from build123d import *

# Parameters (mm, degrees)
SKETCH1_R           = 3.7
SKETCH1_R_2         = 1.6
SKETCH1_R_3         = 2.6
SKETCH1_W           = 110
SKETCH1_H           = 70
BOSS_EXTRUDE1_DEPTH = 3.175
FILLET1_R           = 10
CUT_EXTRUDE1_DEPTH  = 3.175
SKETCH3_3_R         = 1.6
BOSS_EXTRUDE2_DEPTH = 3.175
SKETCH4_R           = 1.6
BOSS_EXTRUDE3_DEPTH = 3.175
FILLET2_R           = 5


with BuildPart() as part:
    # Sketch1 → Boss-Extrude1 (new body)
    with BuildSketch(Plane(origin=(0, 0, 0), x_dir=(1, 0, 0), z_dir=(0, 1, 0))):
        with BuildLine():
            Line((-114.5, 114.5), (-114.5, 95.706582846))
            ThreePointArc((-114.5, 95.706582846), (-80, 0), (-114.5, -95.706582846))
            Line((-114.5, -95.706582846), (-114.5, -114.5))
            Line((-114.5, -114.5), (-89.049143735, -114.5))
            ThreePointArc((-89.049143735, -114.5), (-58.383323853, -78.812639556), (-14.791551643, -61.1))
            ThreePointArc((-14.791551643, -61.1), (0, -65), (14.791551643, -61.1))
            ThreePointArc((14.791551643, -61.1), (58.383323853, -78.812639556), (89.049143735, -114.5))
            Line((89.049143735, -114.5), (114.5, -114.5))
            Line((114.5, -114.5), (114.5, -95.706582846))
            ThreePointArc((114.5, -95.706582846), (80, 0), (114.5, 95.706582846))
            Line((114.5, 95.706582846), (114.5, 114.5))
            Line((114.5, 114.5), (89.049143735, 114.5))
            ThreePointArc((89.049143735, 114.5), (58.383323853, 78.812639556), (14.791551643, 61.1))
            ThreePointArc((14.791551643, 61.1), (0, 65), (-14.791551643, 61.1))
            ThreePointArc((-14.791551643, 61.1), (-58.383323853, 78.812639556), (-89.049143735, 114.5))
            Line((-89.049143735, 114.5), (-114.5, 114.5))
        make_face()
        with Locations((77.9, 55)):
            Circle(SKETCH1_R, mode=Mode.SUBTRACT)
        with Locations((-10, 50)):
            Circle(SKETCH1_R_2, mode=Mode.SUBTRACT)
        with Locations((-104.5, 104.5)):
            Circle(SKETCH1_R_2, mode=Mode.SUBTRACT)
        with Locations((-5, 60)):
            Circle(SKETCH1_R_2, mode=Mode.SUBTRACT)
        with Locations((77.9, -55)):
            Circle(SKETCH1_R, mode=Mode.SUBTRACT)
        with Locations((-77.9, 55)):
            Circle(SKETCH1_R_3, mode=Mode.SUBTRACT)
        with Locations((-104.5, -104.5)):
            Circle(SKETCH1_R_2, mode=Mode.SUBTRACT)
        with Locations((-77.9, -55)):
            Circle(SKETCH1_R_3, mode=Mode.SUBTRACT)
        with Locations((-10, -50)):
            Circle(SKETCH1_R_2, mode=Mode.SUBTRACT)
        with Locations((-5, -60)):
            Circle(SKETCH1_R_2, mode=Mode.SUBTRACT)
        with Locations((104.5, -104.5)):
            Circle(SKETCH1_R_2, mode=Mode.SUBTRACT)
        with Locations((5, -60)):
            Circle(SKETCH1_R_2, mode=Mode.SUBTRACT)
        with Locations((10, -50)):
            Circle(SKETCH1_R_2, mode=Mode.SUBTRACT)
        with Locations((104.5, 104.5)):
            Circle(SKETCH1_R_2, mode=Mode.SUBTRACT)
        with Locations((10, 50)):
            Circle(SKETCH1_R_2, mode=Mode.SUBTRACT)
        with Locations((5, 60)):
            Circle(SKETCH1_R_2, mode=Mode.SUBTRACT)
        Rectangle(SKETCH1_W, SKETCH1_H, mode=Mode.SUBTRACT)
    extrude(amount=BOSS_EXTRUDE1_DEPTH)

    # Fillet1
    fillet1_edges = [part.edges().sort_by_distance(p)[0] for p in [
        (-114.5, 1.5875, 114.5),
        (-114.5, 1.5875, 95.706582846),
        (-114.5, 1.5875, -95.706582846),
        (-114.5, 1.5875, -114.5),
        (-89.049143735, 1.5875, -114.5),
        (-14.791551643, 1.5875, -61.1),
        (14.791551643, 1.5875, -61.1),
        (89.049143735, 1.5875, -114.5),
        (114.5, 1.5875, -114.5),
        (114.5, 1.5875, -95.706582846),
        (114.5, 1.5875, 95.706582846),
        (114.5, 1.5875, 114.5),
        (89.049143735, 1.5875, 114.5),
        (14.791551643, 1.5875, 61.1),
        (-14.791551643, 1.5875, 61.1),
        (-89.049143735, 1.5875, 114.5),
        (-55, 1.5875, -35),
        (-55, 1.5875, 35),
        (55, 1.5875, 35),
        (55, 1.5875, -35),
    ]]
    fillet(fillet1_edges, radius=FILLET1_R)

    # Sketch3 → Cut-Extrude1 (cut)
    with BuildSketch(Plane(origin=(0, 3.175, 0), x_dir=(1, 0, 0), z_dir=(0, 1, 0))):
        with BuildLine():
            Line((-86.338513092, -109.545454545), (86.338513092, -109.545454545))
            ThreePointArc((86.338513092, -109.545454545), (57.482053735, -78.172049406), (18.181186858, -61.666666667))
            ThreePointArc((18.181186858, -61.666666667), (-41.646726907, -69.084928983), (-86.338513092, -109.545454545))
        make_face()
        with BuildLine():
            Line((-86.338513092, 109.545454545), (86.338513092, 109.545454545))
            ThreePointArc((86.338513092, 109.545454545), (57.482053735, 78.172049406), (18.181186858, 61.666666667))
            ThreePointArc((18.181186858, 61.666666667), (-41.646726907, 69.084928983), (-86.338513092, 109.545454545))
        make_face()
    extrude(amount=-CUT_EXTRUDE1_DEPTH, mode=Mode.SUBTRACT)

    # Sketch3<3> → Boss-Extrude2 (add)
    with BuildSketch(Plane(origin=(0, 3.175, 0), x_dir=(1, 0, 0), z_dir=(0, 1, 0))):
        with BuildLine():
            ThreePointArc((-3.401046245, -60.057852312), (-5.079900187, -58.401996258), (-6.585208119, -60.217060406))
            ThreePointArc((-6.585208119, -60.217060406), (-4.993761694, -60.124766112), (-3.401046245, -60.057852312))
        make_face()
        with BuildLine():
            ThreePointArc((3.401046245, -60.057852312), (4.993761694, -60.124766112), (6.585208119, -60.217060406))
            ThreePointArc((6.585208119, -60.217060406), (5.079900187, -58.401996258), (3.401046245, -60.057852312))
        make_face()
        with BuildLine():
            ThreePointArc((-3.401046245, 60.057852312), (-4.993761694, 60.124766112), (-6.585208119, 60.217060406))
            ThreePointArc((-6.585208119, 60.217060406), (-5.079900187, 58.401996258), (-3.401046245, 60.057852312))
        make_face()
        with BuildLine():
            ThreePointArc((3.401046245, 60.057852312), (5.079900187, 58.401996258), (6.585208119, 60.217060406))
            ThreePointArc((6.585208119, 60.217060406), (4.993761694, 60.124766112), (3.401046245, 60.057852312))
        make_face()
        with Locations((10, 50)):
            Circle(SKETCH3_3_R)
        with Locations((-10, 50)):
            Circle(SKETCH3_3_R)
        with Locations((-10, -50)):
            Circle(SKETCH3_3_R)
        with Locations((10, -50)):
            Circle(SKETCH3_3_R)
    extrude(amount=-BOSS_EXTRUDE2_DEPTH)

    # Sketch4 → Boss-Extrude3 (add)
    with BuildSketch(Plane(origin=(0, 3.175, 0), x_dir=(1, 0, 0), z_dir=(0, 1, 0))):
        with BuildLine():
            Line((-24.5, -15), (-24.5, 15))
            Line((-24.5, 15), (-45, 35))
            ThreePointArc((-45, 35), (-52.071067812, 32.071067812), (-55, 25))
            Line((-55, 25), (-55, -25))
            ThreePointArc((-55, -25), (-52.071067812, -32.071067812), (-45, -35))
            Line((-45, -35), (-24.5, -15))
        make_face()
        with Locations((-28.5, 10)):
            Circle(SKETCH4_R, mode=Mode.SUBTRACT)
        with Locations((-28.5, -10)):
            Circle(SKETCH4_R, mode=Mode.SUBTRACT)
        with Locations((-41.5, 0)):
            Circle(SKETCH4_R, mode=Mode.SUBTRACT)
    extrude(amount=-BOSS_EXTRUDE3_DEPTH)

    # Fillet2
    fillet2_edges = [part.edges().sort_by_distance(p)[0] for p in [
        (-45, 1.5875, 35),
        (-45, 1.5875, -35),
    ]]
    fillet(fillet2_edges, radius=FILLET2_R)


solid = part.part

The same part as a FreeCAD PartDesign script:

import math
import FreeCAD as App
import Part
import Sketcher

V = App.Vector


def edges_at(feature, points):
    """Names of the edges that pass closest to the given points."""
    edges = feature.Shape.Edges
    near = lambda p: min(range(len(edges)), key=lambda i: edges[i].distToShape(Part.Vertex(*p))[0])
    return sorted({f"Edge{near(p) + 1}" for p in points})


def add_polygon(sketch, points):
    """Adds a closed chain of lines whose ends are joined by coincident constraints."""
    first, n = sketch.GeometryCount, len(points)
    for a, b in zip(points, points[1:] + points[:1]):
        sketch.addGeometry(Part.LineSegment(App.Vector(*a, 0), App.Vector(*b, 0)), False)
    for i in range(n):
        sketch.addConstraint(Sketcher.Constraint("Coincident", first + i, 2, first + (i + 1) % n, 1))

doc = App.newDocument("Part")
body = doc.addObject("PartDesign::Body", "Body")

# Sketch on XZ plane
sketch1 = body.newObject("Sketcher::SketchObject", "Sketch")
sketch1.AttachmentSupport = (doc.getObject("XZ_Plane"), [""])
sketch1.MapMode = "FlatFace"
sketch1.addGeometry(Part.LineSegment(V(-114.5, -114.5, 0), V(-114.5, -95.7, 0)), False)  # 0
sketch1.addGeometry(Part.ArcOfCircle(Part.Circle(V(-230, 0, 0), V(0, 0, 1), 150), math.radians(-40), math.radians(40)), False)  # 1
sketch1.addGeometry(Part.LineSegment(V(-114.5, 95.7, 0), V(-114.5, 114.5, 0)), False)  # 2
sketch1.addGeometry(Part.LineSegment(V(-114.5, 114.5, 0), V(-89, 114.5, 0)), False)  # 3
sketch1.addGeometry(Part.ArcOfCircle(Part.Circle(V(0, 160, 0), V(0, 0, 1), 100), math.radians(-153), math.radians(-99)), False)  # 4
sketch1.addGeometry(Part.ArcOfCircle(Part.Circle(V(0, 35, 0), V(0, 0, 1), 30), math.radians(60), math.radians(120)), False)  # 5
sketch1.addGeometry(Part.ArcOfCircle(Part.Circle(V(0, 160, 0), V(0, 0, 1), 100), math.radians(-81), math.radians(-27)), False)  # 6
sketch1.addGeometry(Part.LineSegment(V(89, 114.5, 0), V(114.5, 114.5, 0)), False)  # 7
sketch1.addGeometry(Part.LineSegment(V(114.5, 114.5, 0), V(114.5, 95.7, 0)), False)  # 8
sketch1.addGeometry(Part.ArcOfCircle(Part.Circle(V(230, 0, 0), V(0, 0, 1), 150), math.radians(140), math.radians(220)), False)  # 9
sketch1.addGeometry(Part.LineSegment(V(114.5, -95.7, 0), V(114.5, -114.5, 0)), False)  # 10
sketch1.addGeometry(Part.LineSegment(V(114.5, -114.5, 0), V(89, -114.5, 0)), False)  # 11
sketch1.addGeometry(Part.ArcOfCircle(Part.Circle(V(0, -160, 0), V(0, 0, 1), 100), math.radians(27), math.radians(81)), False)  # 12
sketch1.addGeometry(Part.ArcOfCircle(Part.Circle(V(0, -35, 0), V(0, 0, 1), 30), math.radians(-120), math.radians(-60)), False)  # 13
sketch1.addGeometry(Part.ArcOfCircle(Part.Circle(V(0, -160, 0), V(0, 0, 1), 100), math.radians(99), math.radians(153)), False)  # 14
sketch1.addGeometry(Part.LineSegment(V(-89, -114.5, 0), V(-114.5, -114.5, 0)), False)  # 15
sketch1.addGeometry(Part.Circle(V(-104.5, 104.5, 0), V(0, 0, 1), 1.6), False)  # 16
sketch1.addGeometry(Part.Circle(V(-77.9, 55, 0), V(0, 0, 1), 2.6), False)  # 17
sketch1.addGeometry(Part.Circle(V(-5, 60, 0), V(0, 0, 1), 1.6), False)  # 18
sketch1.addGeometry(Part.Circle(V(-10, 50, 0), V(0, 0, 1), 1.6), False)  # 19
sketch1.addGeometry(Part.Circle(V(5, 60, 0), V(0, 0, 1), 1.6), False)  # 20
sketch1.addGeometry(Part.Circle(V(104.5, 104.5, 0), V(0, 0, 1), 1.6), False)  # 21
sketch1.addGeometry(Part.Circle(V(77.9, 55, 0), V(0, 0, 1), 3.7), False)  # 22
sketch1.addGeometry(Part.Circle(V(10, 50, 0), V(0, 0, 1), 1.6), False)  # 23
sketch1.addGeometry(Part.Circle(V(-10, -50, 0), V(0, 0, 1), 1.6), False)  # 24
sketch1.addGeometry(Part.Circle(V(-77.9, -55, 0), V(0, 0, 1), 2.6), False)  # 25
sketch1.addGeometry(Part.Circle(V(-104.5, -104.5, 0), V(0, 0, 1), 1.6), False)  # 26
sketch1.addGeometry(Part.Circle(V(-5, -60, 0), V(0, 0, 1), 1.6), False)  # 27
add_polygon(sketch1, [(55, 35), (-55, 35), (-55, -35), (55, -35)])  # lines 28-31
sketch1.addGeometry(Part.Circle(V(10, -50, 0), V(0, 0, 1), 1.6), False)  # 32
sketch1.addGeometry(Part.Circle(V(5, -60, 0), V(0, 0, 1), 1.6), False)  # 33
sketch1.addGeometry(Part.Circle(V(77.9, -55, 0), V(0, 0, 1), 3.7), False)  # 34
sketch1.addGeometry(Part.Circle(V(104.5, -104.5, 0), V(0, 0, 1), 1.6), False)  # 35
sketch1.addConstraint([
    Sketcher.Constraint("Coincident", 0, 2, 1, 1),
    Sketcher.Constraint("Coincident", 1, 2, 2, 1),
    Sketcher.Constraint("Coincident", 2, 2, 3, 1),
    Sketcher.Constraint("Coincident", 3, 2, 4, 1),
    Sketcher.Constraint("Coincident", 4, 2, 5, 2),
    Sketcher.Constraint("Coincident", 5, 1, 6, 1),
    Sketcher.Constraint("Coincident", 6, 2, 7, 1),
    Sketcher.Constraint("Coincident", 7, 2, 8, 1),
    Sketcher.Constraint("Coincident", 8, 2, 9, 1),
    Sketcher.Constraint("Coincident", 9, 2, 10, 1),
    Sketcher.Constraint("Coincident", 10, 2, 11, 1),
    Sketcher.Constraint("Coincident", 11, 2, 12, 1),
    Sketcher.Constraint("Coincident", 12, 2, 13, 2),
    Sketcher.Constraint("Coincident", 13, 1, 14, 1),
    Sketcher.Constraint("Coincident", 14, 2, 15, 1),
    Sketcher.Constraint("Coincident", 15, 2, 0, 1),
    Sketcher.Constraint("Vertical", 0),
    Sketcher.Constraint("Vertical", 2),
    Sketcher.Constraint("Horizontal", 3),
    Sketcher.Constraint("Horizontal", 7),
    Sketcher.Constraint("Vertical", 8),
    Sketcher.Constraint("Vertical", 10),
    Sketcher.Constraint("Horizontal", 11),
    Sketcher.Constraint("Horizontal", 15),
    Sketcher.Constraint("Horizontal", 28),
    Sketcher.Constraint("Vertical", 29),
    Sketcher.Constraint("Horizontal", 30),
    Sketcher.Constraint("Vertical", 31),
    Sketcher.Constraint("Coincident", 6, 3, 4, 3),
    Sketcher.Constraint("Coincident", 14, 3, 12, 3),
    Sketcher.Constraint("Equal", 4, 6),
    Sketcher.Constraint("Equal", 1, 9),
    Sketcher.Constraint("Equal", 6, 12),
    Sketcher.Constraint("Equal", 5, 13),
    Sketcher.Constraint("Equal", 12, 14),
    Sketcher.Constraint("Equal", 16, 18),
    Sketcher.Constraint("Equal", 18, 19),
    Sketcher.Constraint("Equal", 19, 20),
    Sketcher.Constraint("Equal", 20, 21),
    Sketcher.Constraint("Equal", 21, 23),
    Sketcher.Constraint("Equal", 23, 24),
    Sketcher.Constraint("Equal", 17, 25),
    Sketcher.Constraint("Equal", 24, 26),
    Sketcher.Constraint("Equal", 26, 27),
    Sketcher.Constraint("Equal", 27, 32),
    Sketcher.Constraint("Equal", 32, 33),
    Sketcher.Constraint("Equal", 22, 34),
    Sketcher.Constraint("Equal", 33, 35),
    Sketcher.Constraint("Symmetric", 1, 3, 9, 3, -1, 1),
    Sketcher.Constraint("Symmetric", 4, 3, 12, 3, -1, 1),
    Sketcher.Constraint("Symmetric", 5, 3, 13, 3, -1, 1),
    Sketcher.Constraint("Symmetric", 23, 3, 24, 3, -1, 1),
    Sketcher.Constraint("Symmetric", 22, 3, 25, 3, -1, 1),
    Sketcher.Constraint("Symmetric", 21, 3, 26, 3, -1, 1),
    Sketcher.Constraint("Symmetric", 20, 3, 27, 3, -1, 1),
    Sketcher.Constraint("Symmetric", 19, 3, 32, 3, -1, 1),
    Sketcher.Constraint("Symmetric", 18, 3, 33, 3, -1, 1),
    Sketcher.Constraint("Symmetric", 17, 3, 34, 3, -1, 1),
    Sketcher.Constraint("Symmetric", 16, 3, 35, 3, -1, 1),
    Sketcher.Constraint("Symmetric", 2, 2, 10, 2, -1, 1),
    Sketcher.Constraint("Symmetric", 7, 2, 15, 2, -1, 1),
    Sketcher.Constraint("Symmetric", 28, 2, 30, 2, -1, 1),
    Sketcher.Constraint("Symmetric", 18, 3, 20, 3, -2),
    Sketcher.Constraint("Symmetric", 16, 3, 21, 3, -2),
    Sketcher.Constraint("Symmetric", 17, 3, 22, 3, -2),
    Sketcher.Constraint("Symmetric", 19, 3, 23, 3, -2),
    Sketcher.Constraint("Symmetric", 4, 2, 5, 1, -2),
    Sketcher.Constraint("Symmetric", 2, 2, 7, 2, -2),
    Sketcher.Constraint("PointOnObject", 1, 3, -1),
    Sketcher.Constraint("Horizontal", 5, 3, 28, 2),
    Sketcher.Constraint("Radius", 1, 150.0),
    Sketcher.Constraint("Radius", 4, 100.0),
    Sketcher.Constraint("Radius", 5, 30.0),
    Sketcher.Constraint("Diameter", 16, 3.2),
    Sketcher.Constraint("Diameter", 17, 5.2),
    Sketcher.Constraint("Diameter", 22, 7.4),
    Sketcher.Constraint("DistanceX", 28, 2, 28, 1, 110.0),
    Sketcher.Constraint("DistanceY", 29, 2, 29, 1, 70.0),
    Sketcher.Constraint("DistanceX", 1, 3, -1, 1, 230.0),
    Sketcher.Constraint("DistanceY", -1, 1, 4, 3, 160.0),
    Sketcher.Constraint("DistanceY", -1, 1, 17, 3, 55.0),
    Sketcher.Constraint("DistanceX", 18, 3, -1, 1, 5.0),
    Sketcher.Constraint("DistanceY", -1, 1, 18, 3, 60.0),
    Sketcher.Constraint("DistanceX", 19, 3, -1, 1, 10.0),
    Sketcher.Constraint("DistanceY", -1, 1, 19, 3, 50.0),
    Sketcher.Constraint("DistanceX", 0, 2, 26, 3, 10.0),
    Sketcher.Constraint("DistanceY", 16, 3, 2, 2, 10.0),
    Sketcher.Constraint("DistanceX", 16, 3, -1, 1, 104.5),
    Sketcher.Constraint("DistanceY", -1, 1, 16, 3, 104.5),
    Sketcher.Constraint("DistanceX", 17, 3, -1, 1, 77.9),
])
pad1 = body.newObject("PartDesign::Pad", "Pad")
pad1.Profile = sketch1
pad1.Length = 3.175
pad1.Reversed = True
doc.recompute()

fillet = body.newObject("PartDesign::Fillet", "Fillet")
fillet.Base = (pad1, edges_at(pad1, [
    (-114.5, 1.587, 114.5),
    (-114.5, 1.587, 95.707),
    (-114.5, 1.587, -95.707),
    (-114.5, 1.587, -114.5),
    (-89.049, 1.587, -114.5),
    (-14.792, 1.587, -61.1),
    (14.792, 1.587, -61.1),
    (89.049, 1.587, -114.5),
    (114.5, 1.587, -114.5),
    (114.5, 1.587, -95.707),
    (114.5, 1.587, 95.707),
    (114.5, 1.587, 114.5),
    (89.049, 1.587, 114.5),
    (14.792, 1.587, 61.1),
    (-14.792, 1.587, 61.1),
    (-89.049, 1.587, 114.5),
    (-55, 1.587, -35),
    (-55, 1.587, 35),
    (55, 1.587, 35),
    (55, 1.587, -35),
]))
fillet.Radius = 10

# Sketch on XZ plane
sketch2 = body.newObject("Sketcher::SketchObject", "Sketch001")
sketch2.AttachmentSupport = (doc.getObject("XZ_Plane"), [""])
sketch2.MapMode = "FlatFace"
sketch2.AttachmentOffset = App.Placement(V(0, 0, -3.175), App.Rotation())
sketch2.addGeometry([
    Part.LineSegment(V(-86, 110, 0), V(86, 110, 0)),  # 0
    Part.ArcOfCircle(Part.Circle(V(0, 160, 0), V(0, 0, 1), 100), math.radians(-80), math.radians(-30)),  # 1
    Part.ArcOfCircle(Part.Circle(V(0, 160, 0), V(0, 0, 1), 100), math.radians(-150), math.radians(-80)),  # 2
    Part.LineSegment(V(86, -110, 0), V(-86, -110, 0)),  # 3
    Part.ArcOfCircle(Part.Circle(V(0, -160, 0), V(0, 0, 1), 100), math.radians(80), math.radians(150)),  # 4
    Part.ArcOfCircle(Part.Circle(V(0, -160, 0), V(0, 0, 1), 100), math.radians(30), math.radians(80)),  # 5
], False)
sketch2.addConstraint([
    Sketcher.Constraint("Coincident", 0, 2, 1, 2),
    Sketcher.Constraint("Tangent", 1, 1, 2, 2),
    Sketcher.Constraint("Coincident", 2, 1, 0, 1),
    Sketcher.Constraint("Coincident", 3, 2, 4, 2),
    Sketcher.Constraint("Tangent", 4, 1, 5, 2),
    Sketcher.Constraint("Coincident", 5, 1, 3, 1),
    Sketcher.Constraint("Horizontal", 0),
    Sketcher.Constraint("Horizontal", 3),
    Sketcher.Constraint("Equal", 1, 2),
    Sketcher.Constraint("Equal", 2, 4),
    Sketcher.Constraint("Equal", 4, 5),
    Sketcher.Constraint("Symmetric", 1, 3, 4, 3, -1, 1),
    Sketcher.Constraint("Symmetric", 2, 1, 3, 2, -1),
    Sketcher.Constraint("Vertical", 1, 1, 4, 1),
    Sketcher.Constraint("Radius", 1, 100.0),
    Sketcher.Constraint("DistanceY", -1, 1, 1, 3, 160.0),
    Sketcher.Constraint("DistanceX", 2, 1, 1, 1, 104.5197),
    Sketcher.Constraint("DistanceX", 0, 1, 0, 2, 172.677026),
])
pocket1 = body.newObject("PartDesign::Pocket", "Pocket")
pocket1.Profile = sketch2
pocket1.Length = 3.175
pocket1.Reversed = True

# Sketch on XZ plane
sketch3 = body.newObject("Sketcher::SketchObject", "Sketch002")
sketch3.AttachmentSupport = (doc.getObject("XZ_Plane"), [""])
sketch3.MapMode = "FlatFace"
sketch3.AttachmentOffset = App.Placement(V(0, 0, -3.175), App.Rotation())
sketch3.addGeometry([
    Part.ArcOfCircle(Part.Circle(V(-5, 60, 0), V(0, 0, 1), 1.6), math.radians(172), math.radians(362)),  # 0
    Part.ArcOfCircle(Part.Circle(V(0, 160, 0), V(0, 0, 1), 100), math.radians(-93.78), math.radians(-91.95)),  # 1
    Part.ArcOfCircle(Part.Circle(V(0, 160, 0), V(0, 0, 1), 100), math.radians(-88.05), math.radians(-86.22)),  # 2
    Part.ArcOfCircle(Part.Circle(V(5, 60, 0), V(0, 0, 1), 1.6), math.radians(178), math.radians(368)),  # 3
    Part.ArcOfCircle(Part.Circle(V(0, -160, 0), V(0, 0, 1), 100), math.radians(91.95), math.radians(93.78)),  # 4
    Part.ArcOfCircle(Part.Circle(V(-5, -60, 0), V(0, 0, 1), 1.6), math.radians(-2), math.radians(188)),  # 5
    Part.ArcOfCircle(Part.Circle(V(5, -60, 0), V(0, 0, 1), 1.6), math.radians(-8), math.radians(182)),  # 6
    Part.ArcOfCircle(Part.Circle(V(0, -160, 0), V(0, 0, 1), 100), math.radians(86.22), math.radians(88.05)),  # 7
    Part.Circle(V(10, -50, 0), V(0, 0, 1), 1.6),  # 8
    Part.Circle(V(-10, -50, 0), V(0, 0, 1), 1.6),  # 9
    Part.Circle(V(-10, 50, 0), V(0, 0, 1), 1.6),  # 10
    Part.Circle(V(10, 50, 0), V(0, 0, 1), 1.6),  # 11
], False)
sketch3.addConstraint([
    Sketcher.Constraint("Coincident", 0, 1, 1, 1),
    Sketcher.Constraint("Coincident", 1, 2, 0, 2),
    Sketcher.Constraint("Coincident", 2, 1, 3, 1),
    Sketcher.Constraint("Coincident", 3, 2, 2, 2),
    Sketcher.Constraint("Coincident", 4, 1, 5, 1),
    Sketcher.Constraint("Coincident", 5, 2, 4, 2),
    Sketcher.Constraint("Coincident", 6, 1, 7, 1),
    Sketcher.Constraint("Coincident", 7, 2, 6, 2),
    Sketcher.Constraint("Coincident", 2, 3, 1, 3),
    Sketcher.Constraint("Coincident", 7, 3, 4, 3),
    Sketcher.Constraint("Equal", 1, 2),
    Sketcher.Constraint("Equal", 0, 3),
    Sketcher.Constraint("Equal", 2, 4),
    Sketcher.Constraint("Equal", 3, 5),
    Sketcher.Constraint("Equal", 5, 6),
    Sketcher.Constraint("Equal", 4, 7),
    Sketcher.Constraint("Equal", 6, 8),
    Sketcher.Constraint("Equal", 8, 9),
    Sketcher.Constraint("Equal", 9, 10),
    Sketcher.Constraint("Equal", 10, 11),
    Sketcher.Constraint("Symmetric", 1, 3, 4, 3, -1, 1),
    Sketcher.Constraint("Symmetric", 3, 3, 5, 3, -1, 1),
    Sketcher.Constraint("Symmetric", 0, 3, 6, 3, -1, 1),
    Sketcher.Constraint("Symmetric", 8, 3, 10, 3, -1, 1),
    Sketcher.Constraint("Symmetric", 9, 3, 11, 3, -1, 1),
    Sketcher.Constraint("Symmetric", 0, 3, 3, 3, -2),
    Sketcher.Constraint("Symmetric", 8, 3, 9, 3, -2),
    Sketcher.Constraint("PointOnObject", 1, 3, -2),
    Sketcher.Constraint("Radius", 1, 99.999999),
    Sketcher.Constraint("Diameter", 8, 3.2),
    Sketcher.Constraint("DistanceX", 0, 3, -1, 1, 5.0),
    Sketcher.Constraint("DistanceY", -1, 1, 0, 3, 60.0),
    Sketcher.Constraint("DistanceY", -1, 1, 1, 3, 159.999999),
    Sketcher.Constraint("DistanceX", -1, 1, 8, 3, 10.0),
    Sketcher.Constraint("DistanceY", 8, 3, -1, 1, 50.0),
])
pad2 = body.newObject("PartDesign::Pad", "Pad001")
pad2.Profile = sketch3
pad2.Length = 3.175

# Sketch on XZ plane
sketch4 = body.newObject("Sketcher::SketchObject", "Sketch003")
sketch4.AttachmentSupport = (doc.getObject("XZ_Plane"), [""])
sketch4.MapMode = "FlatFace"
sketch4.AttachmentOffset = App.Placement(V(0, 0, -3.175), App.Rotation())
sketch4.addGeometry([
    Part.LineSegment(V(-24.5, 15, 0), V(-24.5, -15, 0)),  # 0
    Part.LineSegment(V(-24.5, -15, 0), V(-45, -35, 0)),  # 1
    Part.ArcOfCircle(Part.Circle(V(-45, -25, 0), V(0, 0, 1), 10), math.radians(180), math.radians(270)),  # 2
    Part.LineSegment(V(-55, -25, 0), V(-55, 25, 0)),  # 3
    Part.ArcOfCircle(Part.Circle(V(-45, 25, 0), V(0, 0, 1), 10), math.radians(90), math.radians(180)),  # 4
    Part.LineSegment(V(-45, 35, 0), V(-24.5, 15, 0)),  # 5
    Part.Circle(V(-28.5, 10, 0), V(0, 0, 1), 1.6),  # 6
    Part.Circle(V(-41.5, 0, 0), V(0, 0, 1), 1.6),  # 7
    Part.Circle(V(-28.5, -10, 0), V(0, 0, 1), 1.6),  # 8
], False)
sketch4.addConstraint([
    Sketcher.Constraint("Coincident", 0, 2, 1, 1),
    Sketcher.Constraint("Coincident", 1, 2, 2, 2),
    Sketcher.Constraint("Tangent", 2, 1, 3, 1),
    Sketcher.Constraint("Tangent", 3, 2, 4, 2),
    Sketcher.Constraint("Coincident", 4, 1, 5, 1),
    Sketcher.Constraint("Coincident", 5, 2, 0, 1),
    Sketcher.Constraint("Vertical", 0),
    Sketcher.Constraint("Vertical", 3),
    Sketcher.Constraint("Equal", 2, 4),
    Sketcher.Constraint("Equal", 6, 7),
    Sketcher.Constraint("Equal", 7, 8),
    Sketcher.Constraint("Symmetric", 6, 3, 8, 3, -1),
    Sketcher.Constraint("Symmetric", 1, 2, 4, 1, -1),
    Sketcher.Constraint("PointOnObject", 7, 3, -1),
    Sketcher.Constraint("Vertical", 4, 3, 1, 2),
    Sketcher.Constraint("Equal", 1, 5),
    Sketcher.Constraint("Radius", 2, 10.0),
    Sketcher.Constraint("Diameter", 6, 3.2),
    Sketcher.Constraint("DistanceY", 0, 2, 0, 1, 30.0),
    Sketcher.Constraint("DistanceY", 3, 1, 3, 2, 50.0),
    Sketcher.Constraint("DistanceX", 2, 3, -1, 1, 45.0),
    Sketcher.Constraint("DistanceY", -1, 1, 6, 3, 10.0),
    Sketcher.Constraint("DistanceX", 7, 3, 6, 3, 13.0),
    Sketcher.Constraint("DistanceX", 8, 3, 0, 2, 4.0),
    Sketcher.Constraint("DistanceX", 6, 3, -1, 1, 28.5),
])
pad3 = body.newObject("PartDesign::Pad", "Pad002")
pad3.Profile = sketch4
pad3.Length = 3.175
doc.recompute()

fillet2 = body.newObject("PartDesign::Fillet", "Fillet001")
fillet2.Base = (pad3, edges_at(pad3, [(-45, 1.587, 35), (-45, 1.587, -35)]))
fillet2.Radius = 5

doc.recompute()
